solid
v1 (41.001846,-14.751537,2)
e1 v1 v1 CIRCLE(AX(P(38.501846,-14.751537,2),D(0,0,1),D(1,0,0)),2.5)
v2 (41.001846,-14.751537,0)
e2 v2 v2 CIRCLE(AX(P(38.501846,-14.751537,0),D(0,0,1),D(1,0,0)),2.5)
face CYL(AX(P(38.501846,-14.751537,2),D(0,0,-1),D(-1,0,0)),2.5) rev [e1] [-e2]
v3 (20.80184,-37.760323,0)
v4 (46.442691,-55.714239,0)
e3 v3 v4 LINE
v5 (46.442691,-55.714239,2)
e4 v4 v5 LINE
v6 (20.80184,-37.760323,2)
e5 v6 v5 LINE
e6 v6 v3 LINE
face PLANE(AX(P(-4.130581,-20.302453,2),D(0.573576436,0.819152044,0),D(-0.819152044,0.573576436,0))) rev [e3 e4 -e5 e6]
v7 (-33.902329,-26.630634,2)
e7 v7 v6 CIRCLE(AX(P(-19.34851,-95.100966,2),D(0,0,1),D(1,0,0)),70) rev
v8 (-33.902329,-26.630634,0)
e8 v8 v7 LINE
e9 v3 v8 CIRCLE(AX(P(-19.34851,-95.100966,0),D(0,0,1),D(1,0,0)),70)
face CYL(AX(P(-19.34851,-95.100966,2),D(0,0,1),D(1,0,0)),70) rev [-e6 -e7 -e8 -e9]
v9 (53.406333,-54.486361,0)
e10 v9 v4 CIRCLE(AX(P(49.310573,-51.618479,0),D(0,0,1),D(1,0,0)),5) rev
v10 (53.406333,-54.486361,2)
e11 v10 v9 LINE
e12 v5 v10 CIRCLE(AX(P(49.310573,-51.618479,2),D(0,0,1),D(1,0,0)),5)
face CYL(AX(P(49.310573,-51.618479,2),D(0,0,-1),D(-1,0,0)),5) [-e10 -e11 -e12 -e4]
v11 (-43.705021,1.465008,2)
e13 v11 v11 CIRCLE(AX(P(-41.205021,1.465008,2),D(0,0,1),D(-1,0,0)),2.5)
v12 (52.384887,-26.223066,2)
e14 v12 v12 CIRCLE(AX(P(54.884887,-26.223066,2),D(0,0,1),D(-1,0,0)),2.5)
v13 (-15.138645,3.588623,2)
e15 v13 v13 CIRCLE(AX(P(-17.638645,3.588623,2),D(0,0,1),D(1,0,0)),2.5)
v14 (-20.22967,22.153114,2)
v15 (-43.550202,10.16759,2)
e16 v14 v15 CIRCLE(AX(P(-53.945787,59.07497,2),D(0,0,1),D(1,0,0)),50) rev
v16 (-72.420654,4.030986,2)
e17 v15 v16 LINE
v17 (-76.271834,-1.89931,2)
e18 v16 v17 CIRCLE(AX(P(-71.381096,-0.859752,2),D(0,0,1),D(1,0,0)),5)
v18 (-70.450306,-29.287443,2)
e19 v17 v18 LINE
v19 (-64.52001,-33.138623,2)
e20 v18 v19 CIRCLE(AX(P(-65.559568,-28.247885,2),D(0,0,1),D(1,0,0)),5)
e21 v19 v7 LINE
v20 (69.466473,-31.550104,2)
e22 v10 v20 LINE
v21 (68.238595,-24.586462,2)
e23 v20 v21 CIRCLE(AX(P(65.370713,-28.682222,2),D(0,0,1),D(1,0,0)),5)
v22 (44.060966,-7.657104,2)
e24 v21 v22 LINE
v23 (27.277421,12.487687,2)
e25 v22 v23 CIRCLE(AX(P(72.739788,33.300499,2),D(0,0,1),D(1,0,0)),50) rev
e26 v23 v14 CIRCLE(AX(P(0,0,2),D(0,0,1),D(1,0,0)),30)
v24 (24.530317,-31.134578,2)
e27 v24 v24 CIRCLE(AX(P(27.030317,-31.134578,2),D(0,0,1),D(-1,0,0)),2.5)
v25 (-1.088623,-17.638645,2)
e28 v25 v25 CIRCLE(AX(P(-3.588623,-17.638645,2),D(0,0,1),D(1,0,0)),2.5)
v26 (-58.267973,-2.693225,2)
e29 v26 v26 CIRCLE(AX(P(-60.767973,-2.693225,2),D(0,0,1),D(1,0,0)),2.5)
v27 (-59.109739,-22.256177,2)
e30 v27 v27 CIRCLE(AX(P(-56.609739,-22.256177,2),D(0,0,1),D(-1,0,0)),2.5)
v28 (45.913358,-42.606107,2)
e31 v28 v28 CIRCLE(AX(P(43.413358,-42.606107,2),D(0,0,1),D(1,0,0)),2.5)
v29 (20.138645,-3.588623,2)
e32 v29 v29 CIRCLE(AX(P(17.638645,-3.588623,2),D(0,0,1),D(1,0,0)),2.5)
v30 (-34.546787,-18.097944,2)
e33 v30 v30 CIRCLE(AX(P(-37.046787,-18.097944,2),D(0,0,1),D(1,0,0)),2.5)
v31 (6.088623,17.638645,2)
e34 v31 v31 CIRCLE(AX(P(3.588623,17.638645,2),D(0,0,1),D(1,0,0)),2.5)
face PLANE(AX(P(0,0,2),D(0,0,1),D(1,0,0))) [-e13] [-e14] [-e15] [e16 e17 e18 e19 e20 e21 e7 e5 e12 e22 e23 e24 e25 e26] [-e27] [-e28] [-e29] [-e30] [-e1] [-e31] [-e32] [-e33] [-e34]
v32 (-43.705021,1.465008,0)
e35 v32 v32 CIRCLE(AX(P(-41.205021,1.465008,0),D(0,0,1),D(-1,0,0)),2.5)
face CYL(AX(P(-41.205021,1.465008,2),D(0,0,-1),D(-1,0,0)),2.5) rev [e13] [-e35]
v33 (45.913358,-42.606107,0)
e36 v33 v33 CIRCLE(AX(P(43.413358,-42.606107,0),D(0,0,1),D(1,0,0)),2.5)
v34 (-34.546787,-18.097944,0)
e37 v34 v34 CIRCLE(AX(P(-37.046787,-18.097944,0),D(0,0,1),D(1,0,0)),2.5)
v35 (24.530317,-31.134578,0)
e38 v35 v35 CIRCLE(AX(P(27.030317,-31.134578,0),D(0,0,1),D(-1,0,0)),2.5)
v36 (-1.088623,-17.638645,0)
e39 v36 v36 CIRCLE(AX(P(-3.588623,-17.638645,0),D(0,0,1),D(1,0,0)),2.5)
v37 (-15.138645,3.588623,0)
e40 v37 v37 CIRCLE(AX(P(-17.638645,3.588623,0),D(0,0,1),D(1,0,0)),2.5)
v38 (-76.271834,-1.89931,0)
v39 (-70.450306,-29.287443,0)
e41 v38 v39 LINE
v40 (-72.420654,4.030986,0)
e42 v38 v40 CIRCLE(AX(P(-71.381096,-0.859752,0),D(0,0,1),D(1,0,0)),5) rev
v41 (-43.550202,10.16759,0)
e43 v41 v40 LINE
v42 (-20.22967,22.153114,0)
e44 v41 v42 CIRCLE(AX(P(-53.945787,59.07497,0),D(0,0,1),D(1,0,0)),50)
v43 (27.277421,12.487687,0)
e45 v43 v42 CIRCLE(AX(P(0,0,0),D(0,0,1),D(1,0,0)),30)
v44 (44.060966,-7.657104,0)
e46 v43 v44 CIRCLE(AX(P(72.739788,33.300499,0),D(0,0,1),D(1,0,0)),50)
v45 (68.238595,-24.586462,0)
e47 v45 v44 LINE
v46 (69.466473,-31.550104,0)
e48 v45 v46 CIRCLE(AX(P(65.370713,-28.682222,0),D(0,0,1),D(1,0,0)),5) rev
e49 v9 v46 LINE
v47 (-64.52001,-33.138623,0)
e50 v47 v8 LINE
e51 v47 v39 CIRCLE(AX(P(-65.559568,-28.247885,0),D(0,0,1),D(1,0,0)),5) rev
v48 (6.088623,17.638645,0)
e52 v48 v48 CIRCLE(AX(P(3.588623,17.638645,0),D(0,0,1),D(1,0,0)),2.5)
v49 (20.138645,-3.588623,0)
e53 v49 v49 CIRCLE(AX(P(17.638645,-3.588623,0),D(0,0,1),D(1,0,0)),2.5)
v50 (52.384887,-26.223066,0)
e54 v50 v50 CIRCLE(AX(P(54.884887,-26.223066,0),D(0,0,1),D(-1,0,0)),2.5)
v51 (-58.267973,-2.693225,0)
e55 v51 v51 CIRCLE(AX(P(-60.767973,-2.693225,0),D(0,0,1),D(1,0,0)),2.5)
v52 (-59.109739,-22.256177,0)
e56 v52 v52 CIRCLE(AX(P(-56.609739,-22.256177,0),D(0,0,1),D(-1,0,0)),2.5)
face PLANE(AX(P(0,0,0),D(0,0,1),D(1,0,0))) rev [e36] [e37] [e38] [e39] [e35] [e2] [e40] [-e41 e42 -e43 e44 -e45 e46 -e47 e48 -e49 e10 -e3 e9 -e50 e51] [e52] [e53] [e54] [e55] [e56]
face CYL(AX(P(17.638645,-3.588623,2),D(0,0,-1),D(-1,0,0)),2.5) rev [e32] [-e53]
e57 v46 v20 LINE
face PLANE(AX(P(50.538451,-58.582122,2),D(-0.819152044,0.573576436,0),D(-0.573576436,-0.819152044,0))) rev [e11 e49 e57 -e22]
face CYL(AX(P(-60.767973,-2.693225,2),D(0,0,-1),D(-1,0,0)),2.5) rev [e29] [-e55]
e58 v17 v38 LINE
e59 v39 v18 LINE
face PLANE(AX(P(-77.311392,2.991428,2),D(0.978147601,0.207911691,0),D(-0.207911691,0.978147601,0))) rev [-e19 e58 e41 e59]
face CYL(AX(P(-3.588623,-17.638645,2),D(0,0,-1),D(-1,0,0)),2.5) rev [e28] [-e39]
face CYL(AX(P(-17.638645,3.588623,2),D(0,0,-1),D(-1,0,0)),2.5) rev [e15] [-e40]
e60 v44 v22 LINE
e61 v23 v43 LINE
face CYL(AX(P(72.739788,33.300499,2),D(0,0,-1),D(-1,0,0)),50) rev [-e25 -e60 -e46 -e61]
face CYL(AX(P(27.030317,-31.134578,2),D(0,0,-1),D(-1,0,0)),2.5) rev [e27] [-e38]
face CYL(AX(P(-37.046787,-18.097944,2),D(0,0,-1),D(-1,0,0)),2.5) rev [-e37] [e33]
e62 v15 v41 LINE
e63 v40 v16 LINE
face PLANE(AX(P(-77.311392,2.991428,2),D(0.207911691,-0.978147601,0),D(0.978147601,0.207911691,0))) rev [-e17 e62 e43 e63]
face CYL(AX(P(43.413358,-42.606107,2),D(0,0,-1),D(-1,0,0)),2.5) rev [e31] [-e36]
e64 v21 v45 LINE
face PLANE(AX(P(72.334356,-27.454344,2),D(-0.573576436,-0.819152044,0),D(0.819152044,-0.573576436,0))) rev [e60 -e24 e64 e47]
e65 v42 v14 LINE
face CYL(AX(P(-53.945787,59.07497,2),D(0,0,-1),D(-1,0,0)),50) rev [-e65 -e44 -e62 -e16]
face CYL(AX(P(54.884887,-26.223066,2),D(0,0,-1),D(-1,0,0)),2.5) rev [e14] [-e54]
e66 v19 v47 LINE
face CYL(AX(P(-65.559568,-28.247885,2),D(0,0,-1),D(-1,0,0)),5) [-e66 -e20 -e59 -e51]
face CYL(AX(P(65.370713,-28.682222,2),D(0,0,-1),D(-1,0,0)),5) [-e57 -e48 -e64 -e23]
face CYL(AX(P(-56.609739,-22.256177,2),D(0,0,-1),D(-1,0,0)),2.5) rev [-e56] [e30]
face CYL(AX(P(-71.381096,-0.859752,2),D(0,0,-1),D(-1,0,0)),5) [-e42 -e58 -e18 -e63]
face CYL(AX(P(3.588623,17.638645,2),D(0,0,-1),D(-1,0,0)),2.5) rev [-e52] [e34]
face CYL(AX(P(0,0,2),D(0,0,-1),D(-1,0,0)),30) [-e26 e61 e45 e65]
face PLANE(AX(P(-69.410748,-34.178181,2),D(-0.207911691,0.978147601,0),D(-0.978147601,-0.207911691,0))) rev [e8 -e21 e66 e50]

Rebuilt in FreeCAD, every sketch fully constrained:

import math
import FreeCAD as App
import Part
import Sketcher
Q = App.Units.Quantity


def edges_at(feature, points):
    """Names of the edges that pass closest to the given points."""
    edges = feature.Shape.Edges
    near = lambda p: min(range(len(edges)), key=lambda i: edges[i].distToShape(Part.Vertex(*p))[0])
    return sorted({f"Edge{near(p) + 1}" for p in points})

doc = App.newDocument("Part")
params = doc.addObject("Spreadsheet::Sheet", "Params")
for row, (alias, value) in enumerate([
    ("sketch1_diameter", "5 mm"),
    ("sketch1_radius", "30 mm"),
    ("sketch1_length", "38 mm"),
    ("pad1_length", "2 mm"),
    ("fillet_radius", "50 mm"),
    ("fillet2_radius", "70 mm"),
    ("fillet3_radius", "5 mm"),
], start=1):
    params.set(f"A{row}", alias)
    params.set(f"B{row}", "=" + value)
    params.setAlias(f"B{row}", alias)

body = doc.addObject("PartDesign::Body", "Body")

# Sketch on XY plane
sketch1 = body.newObject("Sketcher::SketchObject", "Sketch")
sketch1.AttachmentSupport = (doc.getObject("XY_Plane"), [""])
sketch1.MapMode = "FlatFace"
sketch1.addGeometry([
    Part.LineSegment(App.Vector(-77.311392, 2.991428, 0), App.Vector(-69.410748, -34.178181, 0)),  # 0
    Part.LineSegment(App.Vector(-69.410748, -34.178181, 0), App.Vector(-4.130581, -20.302453, 0)),  # 1
    Part.LineSegment(App.Vector(-4.130581, -20.302453, 0), App.Vector(50.538451, -58.582122, 0)),  # 2
    Part.LineSegment(App.Vector(50.538451, -58.582122, 0), App.Vector(72.334356, -27.454344, 0)),  # 3
    Part.LineSegment(App.Vector(72.334356, -27.454344, 0), App.Vector(29.915692, 2.247524, 0)),  # 4
    Part.ArcOfCircle(Part.Circle(App.Vector(0, 0, 0), App.Vector(0, 0, 1), 30), math.radians(4.29648), math.radians(152.70352)),  # 5
    Part.LineSegment(App.Vector(-26.659362, 13.757849, 0), App.Vector(-77.311392, 2.991428, 0)),  # 6
    Part.Circle(App.Vector(-56.609739, -22.256177, 0), App.Vector(0, 0, 1), 2.5),  # 7
    Part.Circle(App.Vector(-37.046787, -18.097944, 0), App.Vector(0, 0, 1), 2.5),  # 8
    Part.Circle(App.Vector(-3.588623, -17.638645, 0), App.Vector(0, 0, 1), 2.5),  # 9
    Part.Circle(App.Vector(27.030317, -31.134578, 0), App.Vector(0, 0, 1), 2.5),  # 10
    Part.Circle(App.Vector(43.413358, -42.606107, 0), App.Vector(0, 0, 1), 2.5),  # 11
    Part.Circle(App.Vector(54.884887, -26.223066, 0), App.Vector(0, 0, 1), 2.5),  # 12
    Part.Circle(App.Vector(38.501846, -14.751537, 0), App.Vector(0, 0, 1), 2.5),  # 13
    Part.Circle(App.Vector(-60.767973, -2.693225, 0), App.Vector(0, 0, 1), 2.5),  # 14
    Part.Circle(App.Vector(-41.205021, 1.465008, 0), App.Vector(0, 0, 1), 2.5),  # 15
    Part.Circle(App.Vector(-17.638645, 3.588623, 0), App.Vector(0, 0, 1), 2.5),  # 16
    Part.Circle(App.Vector(17.638645, -3.588623, 0), App.Vector(0, 0, 1), 2.5),  # 17
    Part.Circle(App.Vector(3.588623, 17.638645, 0), App.Vector(0, 0, 1), 2.5),  # 18
], False)
sketch1.addConstraint([
    Sketcher.Constraint("Coincident", 0, 2, 1, 1),
    Sketcher.Constraint("Coincident", 1, 2, 2, 1),
    Sketcher.Constraint("Coincident", 2, 2, 3, 1),
    Sketcher.Constraint("Coincident", 3, 2, 4, 1),
    Sketcher.Constraint("Coincident", 4, 2, 5, 1),
    Sketcher.Constraint("Coincident", 5, 2, 6, 1),
    Sketcher.Constraint("Coincident", 6, 2, 0, 1),
    Sketcher.Constraint("Coincident", 5, 3, -1, 1),
    Sketcher.Constraint("Equal", 7, 8),
    Sketcher.Constraint("Equal", 8, 9),
    Sketcher.Constraint("Equal", 9, 10),
    Sketcher.Constraint("Equal", 10, 11),
    Sketcher.Constraint("Equal", 11, 12),
    Sketcher.Constraint("Equal", 12, 13),
    Sketcher.Constraint("Equal", 13, 14),
    Sketcher.Constraint("Equal", 14, 15),
    Sketcher.Constraint("Equal", 15, 16),
    Sketcher.Constraint("Equal", 16, 17),
    Sketcher.Constraint("Equal", 17, 18),
    Sketcher.Constraint("Symmetric", 16, 3, 17, 3, -1, 1),
    Sketcher.Constraint("Symmetric", 9, 3, 18, 3, -1, 1),
    Sketcher.Constraint("Perpendicular", 0, 1),
    Sketcher.Constraint("Perpendicular", 2, 3),
    Sketcher.Constraint("Perpendicular", 3, 4),
    Sketcher.Constraint("Parallel", 1, 6),
    Sketcher.Constraint("Equal", 1, 2),
    Sketcher.Constraint("Equal", 0, 3),
    Sketcher.Constraint("Equal", 4, 6),
    Sketcher.Constraint("Diameter", 7, Q("5 mm")),
    Sketcher.Constraint("Radius", 5, Q("30 mm")),
    Sketcher.Constraint("Angle", 0, Q("-78 deg")),
    Sketcher.Constraint("Angle", 2, Q("-35 deg")),
    Sketcher.Constraint("Distance", 0, Q("38 mm")),
    Sketcher.Constraint("DistanceY", 8, 3, 9, 3, Q("0.459299 mm")),
    Sketcher.Constraint("DistanceY", 10, 3, 7, 3, Q("8.8784 mm")),
    Sketcher.Constraint("DistanceX", 15, 3, 9, 3, Q("37.616398 mm")),
    Sketcher.Constraint("DistanceX", 17, 3, 13, 3, Q("20.863201 mm")),
    Sketcher.Constraint("DistanceY", 2, 2, 17, 3, Q("54.993499 mm")),
    Sketcher.Constraint("DistanceY", 10, 3, 4, 2, Q("33.382102 mm")),
    Sketcher.Constraint("DistanceX", 7, 3, -1, 1, Q("56.609739 mm")),
    Sketcher.Constraint("DistanceX", -1, 1, 11, 3, Q("43.413358 mm")),
    Sketcher.Constraint("DistanceX", 15, 3, -1, 1, Q("41.205021 mm")),
    Sketcher.Constraint("DistanceY", -1, 1, 15, 3, Q("1.465008 mm")),
    Sketcher.Constraint("DistanceY", 0, 2, -1, 1, Q("34.178181 mm")),
    Sketcher.Constraint("DistanceX", 1, 2, -1, 1, Q("4.130581 mm")),
    Sketcher.Constraint("DistanceX", 9, 3, 10, 3, Q("30.61894 mm")),
    Sketcher.Constraint("DistanceY", 11, 3, 10, 3, Q("11.471529 mm")),
    Sketcher.Constraint("DistanceY", 11, 3, 9, 3, Q("24.967462 mm")),
    Sketcher.Constraint("DistanceX", 11, 3, 12, 3, Q("11.471529 mm")),
    Sketcher.Constraint("DistanceY", 11, 3, 12, 3, Q("16.383041 mm")),
    Sketcher.Constraint("DistanceX", 13, 3, 12, 3, Q("16.383041 mm")),
    Sketcher.Constraint("DistanceY", 12, 3, 13, 3, Q("11.471529 mm")),
    Sketcher.Constraint("DistanceY", 8, 3, 14, 3, Q("15.404718 mm")),
    Sketcher.Constraint("DistanceX", 14, 3, 9, 3, Q("57.17935 mm")),
    Sketcher.Constraint("DistanceX", 0, 2, 8, 3, Q("32.363961 mm")),
])
sketch1.setExpression("Constraints[28]", "Params.sketch1_diameter")
sketch1.setExpression("Constraints[29]", "Params.sketch1_radius")
sketch1.setExpression("Constraints[32]", "Params.sketch1_length")
pad1 = body.newObject("PartDesign::Pad", "Pad")
pad1.Profile = sketch1
pad1.setExpression("Length", "Params.pad1_length")
doc.recompute()

fillet = body.newObject("PartDesign::Fillet", "Fillet")
fillet.Base = (pad1, edges_at(pad1, [(-26.659, 13.758, 1), (29.916, 2.248, 1)]))
fillet.setExpression("Radius", "Params.fillet_radius")
doc.recompute()

fillet2 = body.newObject("PartDesign::Fillet", "Fillet001")
fillet2.Base = (fillet, edges_at(fillet, [(-4.131, -20.302, 1)]))
fillet2.setExpression("Radius", "Params.fillet2_radius")
doc.recompute()

fillet3 = body.newObject("PartDesign::Fillet", "Fillet002")
fillet3.Base = (fillet2, edges_at(fillet2, [
    (72.334, -27.454, 1),
    (50.538, -58.582, 1),
    (-69.411, -34.178, 1),
    (-77.311, 2.991, 1),
]))
fillet3.setExpression("Radius", "Params.fillet3_radius")

doc.recompute()
